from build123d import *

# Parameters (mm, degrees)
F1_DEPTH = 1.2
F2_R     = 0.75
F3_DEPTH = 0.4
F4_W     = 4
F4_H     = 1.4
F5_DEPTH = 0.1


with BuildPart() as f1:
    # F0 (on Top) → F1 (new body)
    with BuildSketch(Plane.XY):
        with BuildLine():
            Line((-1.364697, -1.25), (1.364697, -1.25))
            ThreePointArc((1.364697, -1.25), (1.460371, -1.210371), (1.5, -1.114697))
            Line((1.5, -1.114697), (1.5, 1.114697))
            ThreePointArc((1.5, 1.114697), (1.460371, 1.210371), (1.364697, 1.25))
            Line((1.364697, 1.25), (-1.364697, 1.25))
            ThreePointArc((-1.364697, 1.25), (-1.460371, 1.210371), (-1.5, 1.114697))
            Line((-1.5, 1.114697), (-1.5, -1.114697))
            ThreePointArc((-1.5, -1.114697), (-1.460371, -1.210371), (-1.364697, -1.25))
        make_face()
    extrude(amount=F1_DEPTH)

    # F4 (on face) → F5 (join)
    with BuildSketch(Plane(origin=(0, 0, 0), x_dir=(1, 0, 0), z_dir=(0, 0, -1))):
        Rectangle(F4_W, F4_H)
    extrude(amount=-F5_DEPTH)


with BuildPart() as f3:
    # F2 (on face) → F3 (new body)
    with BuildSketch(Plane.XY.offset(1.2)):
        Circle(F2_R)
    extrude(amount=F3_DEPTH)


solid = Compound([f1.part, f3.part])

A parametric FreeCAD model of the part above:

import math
import FreeCAD as App
import Part
import Sketcher

V = App.Vector
Q = App.Units.Quantity

doc = App.newDocument("Part")
params = doc.addObject("Spreadsheet::Sheet", "Params")
for row, (alias, value) in enumerate([
    ("pad1_length", "1.2 mm"),
    ("sketch2_width", "4 mm"),
    ("sketch2_height", "1.4 mm"),
    ("pad2_length", "0.1 mm"),
    ("sketch3_diameter", "1.5 mm"),
    ("pad3_length", "0.4 mm"),
], start=1):
    params.set(f"A{row}", alias)
    params.set(f"B{row}", "=" + value)
    params.setAlias(f"B{row}", alias)

body = doc.addObject("PartDesign::Body", "Body")

# Sketch on XY plane
sketch1 = doc.addObject("Sketcher::SketchObject", "Sketch")
body.addObject(sketch1)
sketch1.AttachmentSupport = (doc.XY_Plane, [""])
sketch1.MapMode = "FlatFace"
sketch1.addGeometry([
    Part.LineSegment(V(-1.36, -1.25, 0), V(1.36, -1.25, 0)),  # 0
    Part.ArcOfCircle(Part.Circle(V(1.36, -1.11, 0), V(0, 0, 1), 0.14), math.radians(-90), math.radians(0)),  # 1
    Part.LineSegment(V(1.5, -1.11, 0), V(1.5, 1.11, 0)),  # 2
    Part.ArcOfCircle(Part.Circle(V(1.36, 1.11, 0), V(0, 0, 1), 0.14), math.radians(0), math.radians(90)),  # 3
    Part.LineSegment(V(1.36, 1.25, 0), V(-1.36, 1.25, 0)),  # 4
    Part.ArcOfCircle(Part.Circle(V(-1.36, 1.11, 0), V(0, 0, 1), 0.14), math.radians(90), math.radians(180)),  # 5
    Part.LineSegment(V(-1.5, 1.11, 0), V(-1.5, -1.11, 0)),  # 6
    Part.ArcOfCircle(Part.Circle(V(-1.36, -1.11, 0), V(0, 0, 1), 0.14), math.radians(180), math.radians(270)),  # 7
], False)
sketch1.addConstraint([
    Sketcher.Constraint("Coincident", 0, 2, 1, 1),
    Sketcher.Constraint("Coincident", 1, 2, 2, 1),
    Sketcher.Constraint("Coincident", 2, 2, 3, 1),
    Sketcher.Constraint("Coincident", 3, 2, 4, 1),
    Sketcher.Constraint("Coincident", 4, 2, 5, 1),
    Sketcher.Constraint("Coincident", 5, 2, 6, 1),
    Sketcher.Constraint("Coincident", 6, 2, 7, 1),
    Sketcher.Constraint("Coincident", 7, 2, 0, 1),
    Sketcher.Constraint("Horizontal", 0),
    Sketcher.Constraint("Vertical", 2),
    Sketcher.Constraint("Horizontal", 4),
    Sketcher.Constraint("Vertical", 6),
    Sketcher.Constraint("Equal", 1, 3),
    Sketcher.Constraint("Equal", 3, 5),
    Sketcher.Constraint("Equal", 5, 7),
    Sketcher.Constraint("Symmetric", 1, 3, 5, 3, -1, 1),
    Sketcher.Constraint("Horizontal", 7, 3, 1, 2),
    Sketcher.Constraint("Horizontal", 5, 3, 2, 2),
    Sketcher.Constraint("Horizontal", 2, 2, 5, 2),
    Sketcher.Constraint("Horizontal", 1, 2, 6, 2),
    Sketcher.Constraint("Vertical", 3, 3, 0, 2),
    Sketcher.Constraint("Vertical", 0, 2, 3, 2),
    Sketcher.Constraint("Vertical", 7, 3, 4, 2),
    Sketcher.Constraint("Vertical", 4, 2, 7, 2),
    Sketcher.Constraint("DistanceX", -1, 1, 1, 2, Q("1.5 mm")),
    Sketcher.Constraint("Radius", 1, Q("0.135302 mm")),
    Sketcher.Constraint("DistanceY", 0, 2, 3, 2, Q("2.5 mm")),
])
pad1 = doc.addObject("PartDesign::Pad", "Pad")
body.addObject(pad1)
pad1.Profile = sketch1
pad1.setExpression("Length", "Params.pad1_length")

# Sketch on XY plane
sketch2 = doc.addObject("Sketcher::SketchObject", "Sketch001")
body.addObject(sketch2)
sketch2.AttachmentSupport = (doc.XY_Plane, [""])
sketch2.MapMode = "FlatFace"
sketch2.addGeometry([
    Part.LineSegment(V(-2, -0.7, 0), V(-2, 0.7, 0)),
    Part.LineSegment(V(-2, 0.7, 0), V(2, 0.7, 0)),
    Part.LineSegment(V(2, 0.7, 0), V(2, -0.7, 0)),
    Part.LineSegment(V(2, -0.7, 0), V(-2, -0.7, 0)),
], False)
sketch2.addConstraint([
    Sketcher.Constraint("Coincident", 0, 2, 1, 1),
    Sketcher.Constraint("Coincident", 1, 2, 2, 1),
    Sketcher.Constraint("Coincident", 2, 2, 3, 1),
    Sketcher.Constraint("Coincident", 3, 2, 0, 1),
    Sketcher.Constraint("Vertical", 0),
    Sketcher.Constraint("Horizontal", 1),
    Sketcher.Constraint("Vertical", 2),
    Sketcher.Constraint("Horizontal", 3),
    Sketcher.Constraint("Symmetric", 0, 2, 2, 2, -1, 1),
    Sketcher.Constraint("DistanceX", 1, 1, 1, 2, Q("4 mm")),
    Sketcher.Constraint("DistanceY", 0, 1, 0, 2, Q("1.4 mm")),
])
sketch2.setExpression("Constraints[9]", "Params.sketch2_width")
sketch2.setExpression("Constraints[10]", "Params.sketch2_height")
pad2 = doc.addObject("PartDesign::Pad", "Pad001")
body.addObject(pad2)
pad2.Profile = sketch2
pad2.setExpression("Length", "Params.pad2_length")
body2 = doc.addObject("PartDesign::Body", "Body001")

# Sketch on XY plane
sketch3 = doc.addObject("Sketcher::SketchObject", "Sketch002")
body2.addObject(sketch3)
sketch3.AttachmentSupport = (doc.getObject("XY_Plane001"), [""])
sketch3.MapMode = "FlatFace"
sketch3.AttachmentOffset = App.Placement(V(0, 0, 1.2), App.Rotation())
sketch3.addGeometry(Part.Circle(V(0, 0, 0), V(0, 0, 1), 0.8), False)
sketch3.addConstraint([
    Sketcher.Constraint("Coincident", 0, 3, -1, 1),
    Sketcher.Constraint("Diameter", 0, Q("1.5 mm")),
])
sketch3.setExpression("Constraints[1]", "Params.sketch3_diameter")
pad3 = doc.addObject("PartDesign::Pad", "Pad002")
body2.addObject(pad3)
pad3.Profile = sketch3
pad3.setExpression("Length", "Params.pad3_length")

doc.recompute()
